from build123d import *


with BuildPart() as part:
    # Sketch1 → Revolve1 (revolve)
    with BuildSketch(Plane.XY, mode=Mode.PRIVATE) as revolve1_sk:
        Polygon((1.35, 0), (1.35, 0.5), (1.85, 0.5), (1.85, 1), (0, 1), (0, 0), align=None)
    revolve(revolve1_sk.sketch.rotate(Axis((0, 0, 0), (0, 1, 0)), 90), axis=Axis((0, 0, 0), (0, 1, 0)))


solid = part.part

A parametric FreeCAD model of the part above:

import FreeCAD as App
import Part
import Sketcher

V = App.Vector
Q = App.Units.Quantity


def add_polygon(sketch, points):
    """Adds a closed chain of lines whose ends are joined by coincident constraints."""
    first, n = sketch.GeometryCount, len(points)
    for a, b in zip(points, points[1:] + points[:1]):
        sketch.addGeometry(Part.LineSegment(App.Vector(*a, 0), App.Vector(*b, 0)), False)
    for i in range(n):
        sketch.addConstraint(Sketcher.Constraint("Coincident", first + i, 2, first + (i + 1) % n, 1))

doc = App.newDocument("Part")
body = doc.addObject("PartDesign::Body", "Body")

# Sketch on XY plane
sketch1 = body.newObject("Sketcher::SketchObject", "Sketch")
sketch1.AttachmentSupport = (doc.getObject("XY_Plane"), [""])
sketch1.MapMode = "FlatFace"
add_polygon(sketch1, [(1.35, 0), (1.35, 0.5), (1.85, 0.5), (1.85, 1), (0, 1), (0, 0)])  # lines 0-5
sketch1.addConstraint(Sketcher.Constraint("Vertical", 0))
sketch1.addConstraint(Sketcher.Constraint("Horizontal", 1))
sketch1.addConstraint(Sketcher.Constraint("Vertical", 2))
sketch1.addConstraint(Sketcher.Constraint("Horizontal", 3))
sketch1.addConstraint(Sketcher.Constraint("Vertical", 4))
sketch1.addConstraint(Sketcher.Constraint("Horizontal", 5))
sketch1.addConstraint(Sketcher.Constraint("Coincident", 4, 2, -1, 1))
sketch1.addConstraint(Sketcher.Constraint("Equal", 1, 0))
sketch1.addConstraint(Sketcher.Constraint("Equal", 0, 2))
sketch1.addConstraint(Sketcher.Constraint("DistanceY", 4, 2, 4, 1, Q("1 mm")))
sketch1.addConstraint(Sketcher.Constraint("DistanceX", 3, 2, 3, 1, Q("1.85 mm")))
revolution = body.newObject("PartDesign::Revolution", "Revolution")
revolution.Profile = sketch1
revolution.ReferenceAxis = (sketch1, ["V_Axis"])
revolution.Angle = 360

doc.recompute()
